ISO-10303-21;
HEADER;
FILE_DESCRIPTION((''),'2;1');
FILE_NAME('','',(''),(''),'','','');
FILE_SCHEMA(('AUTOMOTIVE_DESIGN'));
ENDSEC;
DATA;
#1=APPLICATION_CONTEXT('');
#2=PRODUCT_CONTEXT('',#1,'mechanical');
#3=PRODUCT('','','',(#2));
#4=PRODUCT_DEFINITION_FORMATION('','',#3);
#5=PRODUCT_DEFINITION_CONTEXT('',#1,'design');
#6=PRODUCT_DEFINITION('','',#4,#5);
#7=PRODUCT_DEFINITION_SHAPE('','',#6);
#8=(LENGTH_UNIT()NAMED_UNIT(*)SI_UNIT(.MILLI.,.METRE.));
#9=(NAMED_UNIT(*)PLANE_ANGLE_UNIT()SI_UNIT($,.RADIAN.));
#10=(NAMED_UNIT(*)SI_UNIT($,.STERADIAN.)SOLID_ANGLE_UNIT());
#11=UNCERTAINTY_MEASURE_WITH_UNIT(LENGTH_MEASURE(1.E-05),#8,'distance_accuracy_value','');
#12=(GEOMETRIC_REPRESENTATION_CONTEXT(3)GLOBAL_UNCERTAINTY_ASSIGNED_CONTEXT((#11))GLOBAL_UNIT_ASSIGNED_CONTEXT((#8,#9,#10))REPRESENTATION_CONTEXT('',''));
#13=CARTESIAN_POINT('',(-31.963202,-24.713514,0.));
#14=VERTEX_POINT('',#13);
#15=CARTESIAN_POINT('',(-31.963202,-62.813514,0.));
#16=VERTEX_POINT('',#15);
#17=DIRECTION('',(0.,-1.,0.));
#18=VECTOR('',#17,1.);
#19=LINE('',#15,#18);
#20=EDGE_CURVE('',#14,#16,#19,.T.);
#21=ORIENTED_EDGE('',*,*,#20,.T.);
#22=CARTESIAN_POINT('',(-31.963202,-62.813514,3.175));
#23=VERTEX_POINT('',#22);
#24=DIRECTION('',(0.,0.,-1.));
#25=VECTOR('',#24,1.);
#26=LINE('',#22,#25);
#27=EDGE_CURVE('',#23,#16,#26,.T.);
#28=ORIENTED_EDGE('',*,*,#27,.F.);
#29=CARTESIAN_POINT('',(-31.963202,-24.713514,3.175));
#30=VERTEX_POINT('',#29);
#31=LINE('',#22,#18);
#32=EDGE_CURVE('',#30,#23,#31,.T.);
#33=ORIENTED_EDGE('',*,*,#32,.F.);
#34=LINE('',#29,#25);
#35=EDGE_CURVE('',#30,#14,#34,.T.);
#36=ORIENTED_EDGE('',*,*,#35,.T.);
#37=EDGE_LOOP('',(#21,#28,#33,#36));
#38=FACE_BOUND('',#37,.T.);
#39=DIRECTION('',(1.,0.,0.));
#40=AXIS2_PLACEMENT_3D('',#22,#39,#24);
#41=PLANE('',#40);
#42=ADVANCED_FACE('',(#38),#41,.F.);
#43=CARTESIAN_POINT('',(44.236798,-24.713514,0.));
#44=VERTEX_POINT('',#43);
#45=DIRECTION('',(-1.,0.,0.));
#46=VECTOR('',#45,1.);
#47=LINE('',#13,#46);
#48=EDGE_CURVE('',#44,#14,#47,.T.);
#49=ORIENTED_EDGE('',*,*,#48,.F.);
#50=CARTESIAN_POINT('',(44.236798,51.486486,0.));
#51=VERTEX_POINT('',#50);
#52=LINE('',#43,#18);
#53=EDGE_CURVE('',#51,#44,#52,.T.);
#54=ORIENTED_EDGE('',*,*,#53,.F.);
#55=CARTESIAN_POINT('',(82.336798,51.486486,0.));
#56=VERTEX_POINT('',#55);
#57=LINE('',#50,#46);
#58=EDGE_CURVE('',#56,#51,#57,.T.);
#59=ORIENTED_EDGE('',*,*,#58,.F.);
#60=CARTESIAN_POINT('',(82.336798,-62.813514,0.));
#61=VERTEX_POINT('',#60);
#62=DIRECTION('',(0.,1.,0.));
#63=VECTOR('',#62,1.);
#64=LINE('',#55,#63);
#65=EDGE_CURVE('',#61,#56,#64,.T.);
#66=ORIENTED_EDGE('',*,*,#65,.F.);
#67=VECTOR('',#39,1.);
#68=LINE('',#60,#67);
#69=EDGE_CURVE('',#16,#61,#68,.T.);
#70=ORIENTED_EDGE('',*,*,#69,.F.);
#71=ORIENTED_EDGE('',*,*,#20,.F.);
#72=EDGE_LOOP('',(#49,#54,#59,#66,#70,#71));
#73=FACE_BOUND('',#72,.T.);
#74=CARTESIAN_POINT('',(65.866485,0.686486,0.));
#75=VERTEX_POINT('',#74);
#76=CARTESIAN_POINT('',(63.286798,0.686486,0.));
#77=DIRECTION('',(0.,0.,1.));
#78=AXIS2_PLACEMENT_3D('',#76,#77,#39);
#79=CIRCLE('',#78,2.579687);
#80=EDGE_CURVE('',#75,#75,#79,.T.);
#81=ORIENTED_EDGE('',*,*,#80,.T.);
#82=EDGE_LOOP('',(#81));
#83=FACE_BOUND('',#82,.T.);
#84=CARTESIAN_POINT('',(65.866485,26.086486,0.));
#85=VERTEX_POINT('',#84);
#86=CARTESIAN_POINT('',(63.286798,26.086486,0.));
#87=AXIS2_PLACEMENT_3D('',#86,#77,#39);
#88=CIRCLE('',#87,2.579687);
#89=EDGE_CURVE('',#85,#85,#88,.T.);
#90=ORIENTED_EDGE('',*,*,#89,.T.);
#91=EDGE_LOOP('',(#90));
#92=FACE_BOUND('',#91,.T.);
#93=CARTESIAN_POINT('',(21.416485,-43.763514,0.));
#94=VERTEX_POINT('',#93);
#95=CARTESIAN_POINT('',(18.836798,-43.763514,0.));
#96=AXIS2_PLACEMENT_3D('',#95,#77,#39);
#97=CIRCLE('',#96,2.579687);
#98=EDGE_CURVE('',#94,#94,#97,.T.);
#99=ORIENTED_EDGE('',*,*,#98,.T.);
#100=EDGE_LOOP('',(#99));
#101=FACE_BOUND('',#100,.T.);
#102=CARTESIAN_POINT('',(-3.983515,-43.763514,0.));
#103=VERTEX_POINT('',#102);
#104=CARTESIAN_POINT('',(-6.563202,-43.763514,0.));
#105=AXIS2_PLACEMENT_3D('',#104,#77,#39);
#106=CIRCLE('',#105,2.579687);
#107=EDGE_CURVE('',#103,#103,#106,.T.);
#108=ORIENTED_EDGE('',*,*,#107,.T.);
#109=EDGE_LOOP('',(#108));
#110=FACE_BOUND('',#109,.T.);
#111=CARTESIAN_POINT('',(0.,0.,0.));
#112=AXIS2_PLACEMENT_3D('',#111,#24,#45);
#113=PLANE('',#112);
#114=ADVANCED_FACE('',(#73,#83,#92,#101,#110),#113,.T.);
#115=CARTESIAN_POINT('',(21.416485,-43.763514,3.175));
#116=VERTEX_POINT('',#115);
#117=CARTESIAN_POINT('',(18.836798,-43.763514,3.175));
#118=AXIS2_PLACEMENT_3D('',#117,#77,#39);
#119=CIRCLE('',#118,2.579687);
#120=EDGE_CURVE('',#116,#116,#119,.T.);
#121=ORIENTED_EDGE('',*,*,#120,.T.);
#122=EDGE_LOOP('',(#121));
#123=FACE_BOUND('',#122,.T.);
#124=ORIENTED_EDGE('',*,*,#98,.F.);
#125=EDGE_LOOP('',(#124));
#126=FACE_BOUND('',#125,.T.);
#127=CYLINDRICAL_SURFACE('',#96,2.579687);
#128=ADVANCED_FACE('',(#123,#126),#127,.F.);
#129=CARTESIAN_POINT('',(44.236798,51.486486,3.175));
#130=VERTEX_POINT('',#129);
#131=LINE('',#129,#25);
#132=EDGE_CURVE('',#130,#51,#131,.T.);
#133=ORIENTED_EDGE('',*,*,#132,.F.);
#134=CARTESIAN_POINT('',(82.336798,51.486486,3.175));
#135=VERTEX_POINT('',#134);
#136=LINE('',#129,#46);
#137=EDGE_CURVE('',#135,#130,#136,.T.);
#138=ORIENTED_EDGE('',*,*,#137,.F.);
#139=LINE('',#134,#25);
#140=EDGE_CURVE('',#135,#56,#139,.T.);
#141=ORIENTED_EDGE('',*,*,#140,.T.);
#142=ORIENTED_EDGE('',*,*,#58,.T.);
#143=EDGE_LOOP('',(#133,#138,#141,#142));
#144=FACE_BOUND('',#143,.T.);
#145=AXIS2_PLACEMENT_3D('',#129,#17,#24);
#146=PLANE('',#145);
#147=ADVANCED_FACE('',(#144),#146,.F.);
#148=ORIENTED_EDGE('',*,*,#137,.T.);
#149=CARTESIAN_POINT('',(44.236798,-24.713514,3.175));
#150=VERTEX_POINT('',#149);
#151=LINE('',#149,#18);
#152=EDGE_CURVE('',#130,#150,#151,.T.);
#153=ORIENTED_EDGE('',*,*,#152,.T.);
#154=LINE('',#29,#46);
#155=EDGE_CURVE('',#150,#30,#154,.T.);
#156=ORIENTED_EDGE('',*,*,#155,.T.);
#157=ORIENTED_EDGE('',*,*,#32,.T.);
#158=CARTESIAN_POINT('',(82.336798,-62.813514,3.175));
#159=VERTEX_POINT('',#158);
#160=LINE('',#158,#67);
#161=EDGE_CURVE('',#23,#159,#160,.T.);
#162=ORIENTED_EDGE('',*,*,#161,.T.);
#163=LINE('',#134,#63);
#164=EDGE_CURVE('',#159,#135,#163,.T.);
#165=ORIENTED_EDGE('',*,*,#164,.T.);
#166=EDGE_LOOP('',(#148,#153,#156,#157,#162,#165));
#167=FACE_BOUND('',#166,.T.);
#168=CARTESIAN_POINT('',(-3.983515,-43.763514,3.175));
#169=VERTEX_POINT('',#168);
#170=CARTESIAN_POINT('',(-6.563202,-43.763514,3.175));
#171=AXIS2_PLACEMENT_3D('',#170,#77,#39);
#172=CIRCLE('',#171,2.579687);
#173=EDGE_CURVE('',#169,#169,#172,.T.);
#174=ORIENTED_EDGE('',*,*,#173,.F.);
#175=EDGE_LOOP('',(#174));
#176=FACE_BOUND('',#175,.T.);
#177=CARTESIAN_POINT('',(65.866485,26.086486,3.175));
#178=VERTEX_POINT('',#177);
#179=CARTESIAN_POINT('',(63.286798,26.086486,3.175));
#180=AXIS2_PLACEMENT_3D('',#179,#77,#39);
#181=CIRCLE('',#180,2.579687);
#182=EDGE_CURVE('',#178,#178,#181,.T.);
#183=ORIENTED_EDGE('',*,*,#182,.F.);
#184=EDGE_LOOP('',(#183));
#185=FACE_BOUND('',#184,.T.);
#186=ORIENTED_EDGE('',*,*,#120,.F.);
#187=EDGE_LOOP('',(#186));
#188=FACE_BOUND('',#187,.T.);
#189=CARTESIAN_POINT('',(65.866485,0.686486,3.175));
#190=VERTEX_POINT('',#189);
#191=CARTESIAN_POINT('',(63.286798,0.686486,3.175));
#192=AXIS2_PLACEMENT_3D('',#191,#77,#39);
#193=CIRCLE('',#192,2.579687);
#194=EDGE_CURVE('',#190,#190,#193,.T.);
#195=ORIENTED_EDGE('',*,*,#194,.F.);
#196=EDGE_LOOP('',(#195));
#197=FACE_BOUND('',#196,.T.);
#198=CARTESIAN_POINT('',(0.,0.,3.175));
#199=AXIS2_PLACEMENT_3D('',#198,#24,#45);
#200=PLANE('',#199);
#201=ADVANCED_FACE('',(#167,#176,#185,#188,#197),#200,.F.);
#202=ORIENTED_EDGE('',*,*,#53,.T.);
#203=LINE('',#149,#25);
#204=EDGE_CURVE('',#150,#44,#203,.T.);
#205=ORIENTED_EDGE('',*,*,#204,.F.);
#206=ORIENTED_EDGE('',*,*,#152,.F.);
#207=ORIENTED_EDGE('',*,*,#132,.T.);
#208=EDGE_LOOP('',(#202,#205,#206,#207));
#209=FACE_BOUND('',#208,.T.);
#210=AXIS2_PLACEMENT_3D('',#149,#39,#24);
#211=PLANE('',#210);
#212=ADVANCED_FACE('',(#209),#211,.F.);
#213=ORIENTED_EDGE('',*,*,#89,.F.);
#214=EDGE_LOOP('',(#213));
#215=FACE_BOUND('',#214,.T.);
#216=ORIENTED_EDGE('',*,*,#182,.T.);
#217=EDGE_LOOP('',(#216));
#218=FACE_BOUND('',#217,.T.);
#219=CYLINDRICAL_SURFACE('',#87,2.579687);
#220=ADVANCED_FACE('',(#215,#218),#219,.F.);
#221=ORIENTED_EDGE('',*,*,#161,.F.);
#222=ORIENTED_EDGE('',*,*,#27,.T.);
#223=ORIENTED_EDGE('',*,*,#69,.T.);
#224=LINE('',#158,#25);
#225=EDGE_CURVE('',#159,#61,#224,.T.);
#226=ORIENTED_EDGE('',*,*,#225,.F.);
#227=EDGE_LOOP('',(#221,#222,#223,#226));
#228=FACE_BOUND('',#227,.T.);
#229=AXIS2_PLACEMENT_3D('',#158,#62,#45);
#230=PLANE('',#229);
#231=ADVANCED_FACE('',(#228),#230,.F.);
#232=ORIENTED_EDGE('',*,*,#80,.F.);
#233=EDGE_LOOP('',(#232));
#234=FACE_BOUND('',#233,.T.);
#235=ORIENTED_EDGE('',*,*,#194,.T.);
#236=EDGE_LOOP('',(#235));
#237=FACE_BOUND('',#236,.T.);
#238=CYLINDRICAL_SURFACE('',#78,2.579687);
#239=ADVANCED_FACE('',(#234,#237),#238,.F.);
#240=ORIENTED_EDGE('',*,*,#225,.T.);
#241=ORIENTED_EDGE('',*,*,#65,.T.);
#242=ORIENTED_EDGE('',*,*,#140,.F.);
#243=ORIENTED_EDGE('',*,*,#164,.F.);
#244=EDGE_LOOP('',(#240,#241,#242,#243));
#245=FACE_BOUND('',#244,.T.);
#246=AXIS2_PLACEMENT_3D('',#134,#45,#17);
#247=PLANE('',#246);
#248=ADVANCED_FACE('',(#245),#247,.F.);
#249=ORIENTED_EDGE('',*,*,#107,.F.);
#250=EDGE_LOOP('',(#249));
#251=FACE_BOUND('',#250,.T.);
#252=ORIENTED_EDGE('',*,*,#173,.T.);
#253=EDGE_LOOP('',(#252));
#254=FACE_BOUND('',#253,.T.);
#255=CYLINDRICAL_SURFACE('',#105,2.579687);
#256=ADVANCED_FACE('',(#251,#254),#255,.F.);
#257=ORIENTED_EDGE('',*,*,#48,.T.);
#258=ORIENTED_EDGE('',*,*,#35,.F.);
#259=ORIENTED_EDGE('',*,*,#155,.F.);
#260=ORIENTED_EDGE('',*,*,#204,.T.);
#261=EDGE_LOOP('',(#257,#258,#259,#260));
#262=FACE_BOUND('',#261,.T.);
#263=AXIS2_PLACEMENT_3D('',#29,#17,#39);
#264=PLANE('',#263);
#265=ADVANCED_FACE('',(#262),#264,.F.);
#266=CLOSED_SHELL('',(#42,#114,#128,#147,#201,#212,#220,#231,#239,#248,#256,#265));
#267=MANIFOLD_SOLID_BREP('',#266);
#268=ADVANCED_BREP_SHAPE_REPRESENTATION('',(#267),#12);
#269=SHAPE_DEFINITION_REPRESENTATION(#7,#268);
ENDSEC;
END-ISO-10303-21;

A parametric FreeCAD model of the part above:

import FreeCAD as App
import Part
import Sketcher
Q = App.Units.Quantity

doc = App.newDocument("Part")
body = doc.addObject("PartDesign::Body", "Body")

sketch1 = body.newObject("Sketcher::SketchObject", "Sketch")
sketch1.AttachmentSupport = (doc.getObject("XY_Plane"), [""])
sketch1.MapMode = "FlatFace"
sketch1.addGeometry([
    Part.LineSegment(App.Vector(82.336798, 51.486486, 0), App.Vector(44.236798, 51.486486, 0)),
    Part.LineSegment(App.Vector(44.236798, 51.486486, 0), App.Vector(44.236798, -24.713514, 0)),
    Part.LineSegment(App.Vector(44.236798, -24.713514, 0), App.Vector(-31.963202, -24.713514, 0)),
    Part.LineSegment(App.Vector(-31.963202, -24.713514, 0), App.Vector(-31.963202, -62.813514, 0)),
    Part.LineSegment(App.Vector(-31.963202, -62.813514, 0), App.Vector(82.336798, -62.813514, 0)),
    Part.LineSegment(App.Vector(82.336798, -62.813514, 0), App.Vector(82.336798, 51.486486, 0)),
], False)
sketch1.addConstraint([
    Sketcher.Constraint("Coincident", 0, 2, 1, 1),
    Sketcher.Constraint("Coincident", 1, 2, 2, 1),
    Sketcher.Constraint("Coincident", 2, 2, 3, 1),
    Sketcher.Constraint("Coincident", 3, 2, 4, 1),
    Sketcher.Constraint("Coincident", 4, 2, 5, 1),
    Sketcher.Constraint("Coincident", 5, 2, 0, 1),
    Sketcher.Constraint("Horizontal", 0),
    Sketcher.Constraint("Vertical", 1),
    Sketcher.Constraint("Horizontal", 2),
    Sketcher.Constraint("Vertical", 3),
    Sketcher.Constraint("Horizontal", 4),
    Sketcher.Constraint("Vertical", 5),
    Sketcher.Constraint("Equal", 2, 1),
    Sketcher.Constraint("Equal", 0, 3),
    Sketcher.Constraint("DistanceX", 2, 2, 2, 1, Q("3 in")),
    Sketcher.Constraint("DistanceX", 0, 2, 0, 1, Q("1.5 in")),
    Sketcher.Constraint("DistanceX", -1, 1, 0, 2, 44.236798),
    Sketcher.Constraint("DistanceY", -1, 1, 0, 2, 51.486486),
])
pad1 = body.newObject("PartDesign::Pad", "Pad")
pad1.Profile = sketch1
pad1.Length = Q("0.125 in")

sketch2 = body.newObject("Sketcher::SketchObject", "Sketch001")
sketch2.AttachmentSupport = (doc.getObject("XY_Plane"), [""])
sketch2.MapMode = "FlatFace"
sketch2.AttachmentOffset = App.Placement(App.Vector(0, 0, 0.125 * 25.4), App.Rotation())
sketch2.addGeometry([
    Part.Circle(App.Vector(63.286798, 26.086486, 0), App.Vector(0, 0, 1), 2.579687),
    Part.Circle(App.Vector(63.286798, 0.686486, 0), App.Vector(0, 0, 1), 2.579687),
    Part.Circle(App.Vector(-6.563202, -43.763514, 0), App.Vector(0, 0, 1), 2.579687),
    Part.Circle(App.Vector(18.836798, -43.763514, 0), App.Vector(0, 0, 1), 2.579687),
], False)
sketch2.addConstraint([
    Sketcher.Constraint("Equal", 0, 1),
    Sketcher.Constraint("Equal", 1, 2),
    Sketcher.Constraint("Equal", 2, 3),
    Sketcher.Constraint("Horizontal", 2, 3, 3, 3),
    Sketcher.Constraint("Vertical", 0, 3, 1, 3),
    Sketcher.Constraint("Diameter", 0, Q("0.203125 in")),
    Sketcher.Constraint("DistanceY", 1, 3, 0, 3, Q("1 in")),
    Sketcher.Constraint("DistanceX", 2, 3, 3, 3, Q("1 in")),
    Sketcher.Constraint("DistanceX", 2, 3, 1, 3, Q("2.75 in")),
    Sketcher.Constraint("DistanceY", 2, 3, 1, 3, Q("1.75 in")),
    Sketcher.Constraint("DistanceX", -1, 1, 0, 3, 63.286798),
    Sketcher.Constraint("DistanceY", -1, 1, 0, 3, 26.086486),
])
pocket1 = body.newObject("PartDesign::Pocket", "Pocket")
pocket1.Profile = sketch2
pocket1.Length = Q("0.125 in")

doc.recompute()
